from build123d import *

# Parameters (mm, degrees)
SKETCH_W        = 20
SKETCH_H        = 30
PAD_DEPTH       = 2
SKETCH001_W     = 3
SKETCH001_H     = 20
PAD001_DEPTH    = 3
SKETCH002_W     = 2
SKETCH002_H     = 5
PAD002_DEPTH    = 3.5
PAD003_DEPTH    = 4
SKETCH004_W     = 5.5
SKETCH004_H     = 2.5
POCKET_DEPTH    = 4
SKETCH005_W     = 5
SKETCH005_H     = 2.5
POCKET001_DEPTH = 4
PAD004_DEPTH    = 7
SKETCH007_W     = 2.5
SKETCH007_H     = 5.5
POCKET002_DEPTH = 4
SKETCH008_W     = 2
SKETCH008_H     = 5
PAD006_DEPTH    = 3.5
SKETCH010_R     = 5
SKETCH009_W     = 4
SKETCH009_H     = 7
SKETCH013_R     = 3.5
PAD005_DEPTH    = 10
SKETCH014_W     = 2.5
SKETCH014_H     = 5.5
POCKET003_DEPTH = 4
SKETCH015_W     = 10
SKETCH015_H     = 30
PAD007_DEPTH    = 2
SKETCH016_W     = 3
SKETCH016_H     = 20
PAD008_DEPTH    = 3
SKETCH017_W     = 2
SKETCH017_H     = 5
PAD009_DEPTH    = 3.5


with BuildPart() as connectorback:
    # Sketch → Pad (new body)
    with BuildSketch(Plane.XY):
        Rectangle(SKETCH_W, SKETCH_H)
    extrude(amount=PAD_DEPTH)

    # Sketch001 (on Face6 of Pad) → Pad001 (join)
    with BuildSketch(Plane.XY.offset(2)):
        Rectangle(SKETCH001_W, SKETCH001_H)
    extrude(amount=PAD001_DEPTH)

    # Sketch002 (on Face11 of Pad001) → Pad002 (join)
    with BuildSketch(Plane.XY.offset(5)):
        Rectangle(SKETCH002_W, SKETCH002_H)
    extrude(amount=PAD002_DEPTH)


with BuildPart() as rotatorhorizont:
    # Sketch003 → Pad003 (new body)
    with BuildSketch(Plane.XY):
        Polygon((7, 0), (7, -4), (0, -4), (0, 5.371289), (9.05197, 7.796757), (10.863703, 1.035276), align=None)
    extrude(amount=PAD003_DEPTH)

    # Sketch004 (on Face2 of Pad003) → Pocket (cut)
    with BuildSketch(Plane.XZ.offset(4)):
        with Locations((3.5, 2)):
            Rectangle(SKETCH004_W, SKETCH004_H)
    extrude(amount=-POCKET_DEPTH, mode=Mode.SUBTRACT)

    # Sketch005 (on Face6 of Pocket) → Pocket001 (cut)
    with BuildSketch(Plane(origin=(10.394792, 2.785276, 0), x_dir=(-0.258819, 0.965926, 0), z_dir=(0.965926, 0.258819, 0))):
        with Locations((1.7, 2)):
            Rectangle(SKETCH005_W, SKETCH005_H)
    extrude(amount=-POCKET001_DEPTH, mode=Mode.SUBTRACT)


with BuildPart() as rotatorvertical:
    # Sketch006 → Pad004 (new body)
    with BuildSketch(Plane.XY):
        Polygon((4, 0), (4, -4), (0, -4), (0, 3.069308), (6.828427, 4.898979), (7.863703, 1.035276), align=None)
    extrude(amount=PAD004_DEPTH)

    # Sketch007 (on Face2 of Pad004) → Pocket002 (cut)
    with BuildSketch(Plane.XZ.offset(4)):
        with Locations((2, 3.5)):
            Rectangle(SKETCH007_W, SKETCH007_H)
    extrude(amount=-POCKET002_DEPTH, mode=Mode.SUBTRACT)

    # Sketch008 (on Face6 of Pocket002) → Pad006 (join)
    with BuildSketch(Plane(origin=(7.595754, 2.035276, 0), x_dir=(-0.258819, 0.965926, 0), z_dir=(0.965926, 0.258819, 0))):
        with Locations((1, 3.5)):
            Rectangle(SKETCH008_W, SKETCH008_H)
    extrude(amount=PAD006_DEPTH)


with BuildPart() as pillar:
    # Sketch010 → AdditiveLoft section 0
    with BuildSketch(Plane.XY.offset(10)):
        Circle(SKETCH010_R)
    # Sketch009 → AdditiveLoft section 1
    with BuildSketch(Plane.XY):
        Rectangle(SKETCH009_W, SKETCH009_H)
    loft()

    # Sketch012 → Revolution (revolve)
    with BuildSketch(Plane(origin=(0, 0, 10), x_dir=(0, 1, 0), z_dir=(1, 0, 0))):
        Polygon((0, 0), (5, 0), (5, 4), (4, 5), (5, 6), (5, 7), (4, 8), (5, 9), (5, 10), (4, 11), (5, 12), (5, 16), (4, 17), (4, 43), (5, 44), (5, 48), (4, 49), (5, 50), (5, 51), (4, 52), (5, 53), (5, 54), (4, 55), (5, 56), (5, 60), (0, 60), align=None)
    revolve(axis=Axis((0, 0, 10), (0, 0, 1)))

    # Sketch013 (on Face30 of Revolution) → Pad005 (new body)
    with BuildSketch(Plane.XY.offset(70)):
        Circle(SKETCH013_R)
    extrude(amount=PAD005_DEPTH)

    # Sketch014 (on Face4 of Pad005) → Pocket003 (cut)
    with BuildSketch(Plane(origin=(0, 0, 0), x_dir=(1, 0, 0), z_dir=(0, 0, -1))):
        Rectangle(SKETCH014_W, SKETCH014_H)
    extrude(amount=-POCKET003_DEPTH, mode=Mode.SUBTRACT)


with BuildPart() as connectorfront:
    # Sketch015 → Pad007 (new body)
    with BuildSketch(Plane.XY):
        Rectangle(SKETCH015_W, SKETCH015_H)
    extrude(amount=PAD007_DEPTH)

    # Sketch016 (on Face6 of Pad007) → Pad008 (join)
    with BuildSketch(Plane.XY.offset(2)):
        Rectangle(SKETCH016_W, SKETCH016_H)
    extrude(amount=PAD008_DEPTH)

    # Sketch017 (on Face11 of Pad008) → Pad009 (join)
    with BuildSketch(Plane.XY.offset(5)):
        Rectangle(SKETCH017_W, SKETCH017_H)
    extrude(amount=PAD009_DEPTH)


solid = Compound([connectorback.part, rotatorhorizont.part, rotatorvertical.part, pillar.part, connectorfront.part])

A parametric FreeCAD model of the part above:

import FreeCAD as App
import Part
import Sketcher

V = App.Vector
Q = App.Units.Quantity


def add_polygon(sketch, points):
    """Adds a closed chain of lines whose ends are joined by coincident constraints."""
    first, n = sketch.GeometryCount, len(points)
    for a, b in zip(points, points[1:] + points[:1]):
        sketch.addGeometry(Part.LineSegment(App.Vector(*a, 0), App.Vector(*b, 0)), False)
    for i in range(n):
        sketch.addConstraint(Sketcher.Constraint("Coincident", first + i, 2, first + (i + 1) % n, 1))

doc = App.newDocument("Part")
body = doc.addObject("PartDesign::Body", "Body")

# Sketch on XY plane
sketch1 = body.newObject("Sketcher::SketchObject", "Sketch")
sketch1.AttachmentSupport = (doc.getObject("XY_Plane"), [""])
sketch1.MapMode = "FlatFace"
add_polygon(sketch1, [(-10, 15), (-10, -15), (10, -15), (10, 15)])  # lines 0-3
sketch1.addConstraint([
    Sketcher.Constraint("Vertical", 0),
    Sketcher.Constraint("Horizontal", 1),
    Sketcher.Constraint("Vertical", 2),
    Sketcher.Constraint("Horizontal", 3),
    Sketcher.Constraint("Symmetric", 0, 2, 2, 2, -1, 1),
    Sketcher.Constraint("DistanceX", 1, 1, 1, 2, Q("20 mm")),
    Sketcher.Constraint("DistanceY", 0, 2, 0, 1, Q("30 mm")),
])
pad1 = body.newObject("PartDesign::Pad", "Pad")
pad1.Profile = sketch1
pad1.Length = 2

# Sketch on XY plane
sketch2 = body.newObject("Sketcher::SketchObject", "Sketch001")
sketch2.AttachmentSupport = (doc.getObject("XY_Plane"), [""])
sketch2.MapMode = "FlatFace"
sketch2.AttachmentOffset = App.Placement(V(0, 0, 2), App.Rotation())
add_polygon(sketch2, [(-1.5, 10), (-1.5, -10), (1.5, -10), (1.5, 10)])  # lines 0-3
sketch2.addConstraint([
    Sketcher.Constraint("Vertical", 0),
    Sketcher.Constraint("Horizontal", 1),
    Sketcher.Constraint("Vertical", 2),
    Sketcher.Constraint("Horizontal", 3),
    Sketcher.Constraint("Symmetric", 0, 2, 2, 2, -1, 1),
    Sketcher.Constraint("DistanceX", 1, 1, 1, 2, Q("3 mm")),
    Sketcher.Constraint("DistanceY", 0, 2, 0, 1, Q("20 mm")),
])
pad2 = body.newObject("PartDesign::Pad", "Pad001")
pad2.Profile = sketch2
pad2.Length = 3

# Sketch on XY plane
sketch3 = body.newObject("Sketcher::SketchObject", "Sketch002")
sketch3.AttachmentSupport = (doc.getObject("XY_Plane"), [""])
sketch3.MapMode = "FlatFace"
sketch3.AttachmentOffset = App.Placement(V(0, 0, 5), App.Rotation())
add_polygon(sketch3, [(-1, 2.5), (-1, -2.5), (1, -2.5), (1, 2.5)])  # lines 0-3
sketch3.addConstraint([
    Sketcher.Constraint("Vertical", 0),
    Sketcher.Constraint("Horizontal", 1),
    Sketcher.Constraint("Vertical", 2),
    Sketcher.Constraint("Horizontal", 3),
    Sketcher.Constraint("Symmetric", 0, 2, 2, 2, -1, 1),
    Sketcher.Constraint("DistanceX", 1, 1, 1, 2, Q("2 mm")),
    Sketcher.Constraint("DistanceY", 0, 2, 0, 1, Q("5 mm")),
])
pad3 = body.newObject("PartDesign::Pad", "Pad002")
pad3.Profile = sketch3
pad3.Length = 3.5
body2 = doc.addObject("PartDesign::Body", "Body001")

# Sketch on XY plane
sketch4 = body2.newObject("Sketcher::SketchObject", "Sketch003")
sketch4.AttachmentSupport = (doc.getObject("XY_Plane001"), [""])
sketch4.MapMode = "FlatFace"
add_polygon(sketch4, [(7, -4), (7, 0), (10.9, 1), (9.1, 7.8), (0, 5.4), (0, -4)])  # lines 0-5
sketch4.addConstraint([
    Sketcher.Constraint("Vertical", 0),
    Sketcher.Constraint("Vertical", 4),
    Sketcher.Constraint("Horizontal", 5),
    Sketcher.Constraint("PointOnObject", 0, 2, -1),
    Sketcher.Constraint("PointOnObject", 3, 2, -2),
    Sketcher.Constraint("Perpendicular", 1, 2),
    Sketcher.Constraint("Perpendicular", 2, 3),
    Sketcher.Constraint("DistanceX", 5, 1, 5, 2, Q("7 mm")),
    Sketcher.Constraint("DistanceY", 0, 1, 0, 2, Q("4 mm")),
    Sketcher.Constraint("Angle", 1, Q("14.999999 deg")),
    Sketcher.Constraint("Distance", 1, Q("4 mm")),
    Sketcher.Constraint("Distance", 2, Q("7 mm")),
])
pad4 = body2.newObject("PartDesign::Pad", "Pad003")
pad4.Profile = sketch4
pad4.Length = 4

# Sketch on XZ plane
sketch5 = body2.newObject("Sketcher::SketchObject", "Sketch004")
sketch5.AttachmentSupport = (doc.getObject("XZ_Plane001"), [""])
sketch5.MapMode = "FlatFace"
sketch5.AttachmentOffset = App.Placement(V(0, 0, 4), App.Rotation())
add_polygon(sketch5, [(0.8, 3.2), (0.8, 0.8), (6.2, 0.8), (6.2, 3.2)])  # lines 0-3
sketch5.addConstraint([
    Sketcher.Constraint("Vertical", 0),
    Sketcher.Constraint("Horizontal", 1),
    Sketcher.Constraint("Vertical", 2),
    Sketcher.Constraint("Horizontal", 3),
    Sketcher.Constraint("DistanceX", 1, 1, 1, 2, Q("5.5 mm")),
    Sketcher.Constraint("DistanceY", 0, 2, 0, 1, Q("2.5 mm")),
    Sketcher.Constraint("DistanceX", -1, 1, 0, 2, Q("0.75 mm")),
    Sketcher.Constraint("DistanceY", -1, 1, 0, 2, Q("0.75 mm")),
])
pocket1 = body2.newObject("PartDesign::Pocket", "Pocket")
pocket1.Profile = sketch5
pocket1.Length = 4

# Sketch on an angled plane
sketch6 = body2.newObject("Sketcher::SketchObject", "Sketch005")
sketch6.Placement = App.Placement(V(10.394792, 2.785276, 0), App.Rotation(V(-0.25881896, 0.965925849, 0), V(0, 0, 1), V(0.965925849, 0.25881896, 0), "ZXY"))
add_polygon(sketch6, [(-0.8, 3.2), (-0.8, 0.8), (4.2, 0.8), (4.2, 3.2)])  # lines 0-3
sketch6.addConstraint([
    Sketcher.Constraint("Vertical", 0),
    Sketcher.Constraint("Horizontal", 1),
    Sketcher.Constraint("Vertical", 2),
    Sketcher.Constraint("Horizontal", 3),
    Sketcher.Constraint("DistanceX", 1, 1, 1, 2, Q("5 mm")),
    Sketcher.Constraint("DistanceY", 0, 2, 0, 1, Q("2.5 mm")),
    Sketcher.Constraint("DistanceX", 0, 2, -1, 1, Q("0.8 mm")),
    Sketcher.Constraint("DistanceY", -1, 1, 0, 2, Q("0.75 mm")),
])
pocket2 = body2.newObject("PartDesign::Pocket", "Pocket001")
pocket2.Profile = sketch6
pocket2.Length = 4
body3 = doc.addObject("PartDesign::Body", "Body002")

# Sketch on XY plane
sketch7 = body3.newObject("Sketcher::SketchObject", "Sketch006")
sketch7.AttachmentSupport = (doc.getObject("XY_Plane002"), [""])
sketch7.MapMode = "FlatFace"
add_polygon(sketch7, [(4, -4), (4, 0), (7.9, 1), (6.8, 4.9), (0, 3.1), (0, -4)])  # lines 0-5
sketch7.addConstraint([
    Sketcher.Constraint("Vertical", 0),
    Sketcher.Constraint("Vertical", 4),
    Sketcher.Constraint("Horizontal", 5),
    Sketcher.Constraint("PointOnObject", 0, 2, -1),
    Sketcher.Constraint("PointOnObject", 3, 2, -2),
    Sketcher.Constraint("Perpendicular", 1, 2),
    Sketcher.Constraint("Perpendicular", 2, 3),
    Sketcher.Constraint("Equal", 5, 0),
    Sketcher.Constraint("Equal", 1, 2),
    Sketcher.Constraint("DistanceX", 5, 1, 5, 2, Q("4 mm")),
    Sketcher.Constraint("Angle", 1, Q("14.999999 deg")),
    Sketcher.Constraint("Distance", 1, Q("4 mm")),
])
pad5 = body3.newObject("PartDesign::Pad", "Pad004")
pad5.Profile = sketch7
pad5.Length = 7

# Sketch on XZ plane
sketch8 = body3.newObject("Sketcher::SketchObject", "Sketch007")
sketch8.AttachmentSupport = (doc.getObject("XZ_Plane002"), [""])
sketch8.MapMode = "FlatFace"
sketch8.AttachmentOffset = App.Placement(V(0, 0, 4), App.Rotation())
add_polygon(sketch8, [(0.8, 6.2), (0.8, 0.8), (3.2, 0.8), (3.2, 6.2)])  # lines 0-3
sketch8.addConstraint([
    Sketcher.Constraint("Vertical", 0),
    Sketcher.Constraint("Horizontal", 1),
    Sketcher.Constraint("Vertical", 2),
    Sketcher.Constraint("Horizontal", 3),
    Sketcher.Constraint("DistanceX", 1, 1, 1, 2, Q("2.5 mm")),
    Sketcher.Constraint("DistanceY", 0, 2, 0, 1, Q("5.5 mm")),
    Sketcher.Constraint("DistanceX", -1, 1, 0, 2, Q("0.75 mm")),
    Sketcher.Constraint("DistanceY", -1, 1, 0, 2, Q("0.75 mm")),
])
pocket3 = body3.newObject("PartDesign::Pocket", "Pocket002")
pocket3.Profile = sketch8
pocket3.Length = 4

# Sketch on an angled plane
sketch9 = body3.newObject("Sketcher::SketchObject", "Sketch008")
sketch9.Placement = App.Placement(V(7.595754, 2.035276, 0), App.Rotation(V(-0.25881896, 0.965925849, 0), V(0, 0, 1), V(0.965925849, 0.25881896, 0), "ZXY"))
add_polygon(sketch9, [(0, 6), (0, 1), (2, 1), (2, 6)])  # lines 0-3
sketch9.addConstraint([
    Sketcher.Constraint("Vertical", 0),
    Sketcher.Constraint("Horizontal", 1),
    Sketcher.Constraint("Vertical", 2),
    Sketcher.Constraint("Horizontal", 3),
    Sketcher.Constraint("PointOnObject", 0, 2, -2),
    Sketcher.Constraint("DistanceX", 1, 1, 1, 2, Q("2 mm")),
    Sketcher.Constraint("DistanceY", 0, 2, 0, 1, Q("5 mm")),
    Sketcher.Constraint("DistanceY", -1, 1, 0, 2, Q("1 mm")),
])
pad6 = body3.newObject("PartDesign::Pad", "Pad005")
pad6.Profile = sketch9
pad6.Length = 3.5
body4 = doc.addObject("PartDesign::Body", "Body003")

# Sketch on XY plane
sketch10 = body4.newObject("Sketcher::SketchObject", "Sketch009")
sketch10.AttachmentSupport = (doc.getObject("XY_Plane003"), [""])
sketch10.MapMode = "FlatFace"
sketch10.AttachmentOffset = App.Placement(V(0, 0, 10), App.Rotation())
sketch10.addGeometry(Part.Circle(V(0, 0, 0), V(0, 0, 1), 5), False)
sketch10.addConstraint([
    Sketcher.Constraint("Coincident", 0, 3, -1, 1),
    Sketcher.Constraint("Diameter", 0, Q("10 mm")),
])

# Sketch on XY plane
sketch11 = body4.newObject("Sketcher::SketchObject", "Sketch010")
sketch11.AttachmentSupport = (doc.getObject("XY_Plane003"), [""])
sketch11.MapMode = "FlatFace"
add_polygon(sketch11, [(-2, 3.5), (-2, -3.5), (2, -3.5), (2, 3.5)])  # lines 0-3
sketch11.addConstraint([
    Sketcher.Constraint("Vertical", 0),
    Sketcher.Constraint("Horizontal", 1),
    Sketcher.Constraint("Vertical", 2),
    Sketcher.Constraint("Horizontal", 3),
    Sketcher.Constraint("Symmetric", 0, 2, 2, 2, -1, 1),
    Sketcher.Constraint("DistanceX", 1, 1, 1, 2, Q("4 mm")),
    Sketcher.Constraint("DistanceY", 0, 2, 0, 1, Q("7 mm")),
])

additiveloft = body4.newObject("PartDesign::AdditiveLoft", "AdditiveLoft")
additiveloft.Profile = sketch10
additiveloft.Sections = [sketch11]

# Sketch on YZ plane
sketch12 = body4.newObject("Sketcher::SketchObject", "Sketch011")
sketch12.AttachmentSupport = (doc.getObject("YZ_Plane003"), [""])
sketch12.MapMode = "FlatFace"
add_polygon(sketch12, [(0, 10), (5, 10), (5, 14), (4, 15), (5, 16), (5, 17), (4, 18), (5, 19), (5, 20), (4, 21), (5, 22), (5, 26), (4, 27), (4, 53), (5, 54), (5, 58), (4, 59), (5, 60), (5, 61), (4, 62), (5, 63), (5, 64), (4, 65), (5, 66), (5, 70), (0, 70)])  # lines 0-25
sketch12.addConstraint([
    Sketcher.Constraint("Horizontal", 0),
    Sketcher.Constraint("Vertical", 1),
    Sketcher.Constraint("Vertical", 4),
    Sketcher.Constraint("Vertical", 7),
    Sketcher.Constraint("Vertical", 10),
    Sketcher.Constraint("Vertical", 12),
    Sketcher.Constraint("Vertical", 14),
    Sketcher.Constraint("Vertical", 17),
    Sketcher.Constraint("Vertical", 20),
    Sketcher.Constraint("Vertical", 23),
    Sketcher.Constraint("Horizontal", 24),
    Sketcher.Constraint("Vertical", 25),
    Sketcher.Constraint("PointOnObject", 24, 2, -2),
    Sketcher.Constraint("Perpendicular", 2, 3),
    Sketcher.Constraint("Perpendicular", 3, 5),
    Sketcher.Constraint("Perpendicular", 5, 6),
    Sketcher.Constraint("Perpendicular", 6, 8),
    Sketcher.Constraint("Perpendicular", 8, 9),
    Sketcher.Constraint("Perpendicular", 9, 11),
    Sketcher.Constraint("Perpendicular", 11, 13),
    Sketcher.Constraint("Perpendicular", 13, 15),
    Sketcher.Constraint("Perpendicular", 15, 16),
    Sketcher.Constraint("Perpendicular", 16, 18),
    Sketcher.Constraint("Perpendicular", 18, 19),
    Sketcher.Constraint("Perpendicular", 19, 21),
    Sketcher.Constraint("Perpendicular", 21, 22),
    Sketcher.Constraint("Vertical", 1, 2, 3, 2),
    Sketcher.Constraint("Vertical", 2, 2, 5, 2),
    Sketcher.Constraint("Vertical", 4, 2, 6, 2),
    Sketcher.Constraint("Vertical", 5, 2, 8, 2),
    Sketcher.Constraint("Vertical", 7, 2, 9, 2),
    Sketcher.Constraint("Vertical", 8, 2, 11, 2),
    Sketcher.Constraint("Vertical", 10, 2, 13, 2),
    Sketcher.Constraint("Vertical", 12, 2, 15, 2),
    Sketcher.Constraint("Vertical", 14, 2, 16, 2),
    Sketcher.Constraint("Vertical", 15, 2, 18, 2),
    Sketcher.Constraint("Vertical", 17, 2, 19, 2),
    Sketcher.Constraint("Vertical", 18, 2, 21, 2),
    Sketcher.Constraint("Vertical", 20, 2, 22, 2),
    Sketcher.Constraint("Equal", 4, 7),
    Sketcher.Constraint("Equal", 1, 10),
    Sketcher.Constraint("Equal", 10, 14),
    Sketcher.Constraint("Equal", 7, 17),
    Sketcher.Constraint("Equal", 17, 20),
    Sketcher.Constraint("Equal", 14, 23),
    Sketcher.Constraint("Equal", 2, 3),
    Sketcher.Constraint("DistanceX", 0, 1, 0, 2, Q("5 mm")),
    Sketcher.Constraint("DistanceY", 1, 1, 1, 2, Q("4 mm")),
    Sketcher.Constraint("DistanceY", 4, 1, 4, 2, Q("1 mm")),
    Sketcher.Constraint("DistanceY", 12, 1, 12, 2, Q("26 mm")),
    Sketcher.Constraint("DistanceY", 25, 2, 25, 1, Q("60 mm")),
    Sketcher.Constraint("DistanceY", -1, 1, 0, 2, Q("10 mm")),
])
revolution = body4.newObject("PartDesign::Revolution", "Revolution")
revolution.Profile = sketch12
revolution.ReferenceAxis = (sketch12, ["V_Axis"])
revolution.Angle = 360

# Sketch on XY plane
sketch13 = body4.newObject("Sketcher::SketchObject", "Sketch012")
sketch13.AttachmentSupport = (doc.getObject("XY_Plane003"), [""])
sketch13.MapMode = "FlatFace"
sketch13.AttachmentOffset = App.Placement(V(0, 0, 70), App.Rotation())
sketch13.addGeometry(Part.Circle(V(0, 0, 0), V(0, 0, 1), 3.5), False)
sketch13.addConstraint([
    Sketcher.Constraint("Coincident", 0, 3, -1, 1),
    Sketcher.Constraint("Diameter", 0, Q("7 mm")),
])
pad7 = body4.newObject("PartDesign::Pad", "Pad006")
pad7.Profile = sketch13
pad7.Length = 10

# Sketch on XY plane
sketch14 = body4.newObject("Sketcher::SketchObject", "Sketch013")
sketch14.AttachmentSupport = (doc.getObject("XY_Plane003"), [""])
sketch14.MapMode = "FlatFace"
add_polygon(sketch14, [(-1.2, -2.8), (-1.2, 2.8), (1.2, 2.8), (1.2, -2.8)])  # lines 0-3
sketch14.addConstraint([
    Sketcher.Constraint("Vertical", 0),
    Sketcher.Constraint("Horizontal", 1),
    Sketcher.Constraint("Vertical", 2),
    Sketcher.Constraint("Horizontal", 3),
    Sketcher.Constraint("Symmetric", 0, 2, 2, 2, -1, 1),
    Sketcher.Constraint("DistanceX", 1, 1, 1, 2, Q("2.5 mm")),
    Sketcher.Constraint("DistanceY", 0, 1, 0, 2, Q("5.5 mm")),
])
pocket4 = body4.newObject("PartDesign::Pocket", "Pocket003")
pocket4.Profile = sketch14
pocket4.Length = 4
pocket4.Reversed = True
body5 = doc.addObject("PartDesign::Body", "Body004")

# Sketch on XY plane
sketch15 = body5.newObject("Sketcher::SketchObject", "Sketch014")
sketch15.AttachmentSupport = (doc.getObject("XY_Plane004"), [""])
sketch15.MapMode = "FlatFace"
add_polygon(sketch15, [(-5, 15), (-5, -15), (5, -15), (5, 15)])  # lines 0-3
sketch15.addConstraint([
    Sketcher.Constraint("Vertical", 0),
    Sketcher.Constraint("Horizontal", 1),
    Sketcher.Constraint("Vertical", 2),
    Sketcher.Constraint("Horizontal", 3),
    Sketcher.Constraint("Symmetric", 0, 2, 2, 2, -1, 1),
    Sketcher.Constraint("DistanceX", 1, 1, 1, 2, Q("10 mm")),
    Sketcher.Constraint("DistanceY", 0, 2, 0, 1, Q("30 mm")),
])
pad8 = body5.newObject("PartDesign::Pad", "Pad007")
pad8.Profile = sketch15
pad8.Length = 2

# Sketch on XY plane
sketch16 = body5.newObject("Sketcher::SketchObject", "Sketch015")
sketch16.AttachmentSupport = (doc.getObject("XY_Plane004"), [""])
sketch16.MapMode = "FlatFace"
sketch16.AttachmentOffset = App.Placement(V(0, 0, 2), App.Rotation())
add_polygon(sketch16, [(-1.5, 10), (-1.5, -10), (1.5, -10), (1.5, 10)])  # lines 0-3
sketch16.addConstraint([
    Sketcher.Constraint("Vertical", 0),
    Sketcher.Constraint("Horizontal", 1),
    Sketcher.Constraint("Vertical", 2),
    Sketcher.Constraint("Horizontal", 3),
    Sketcher.Constraint("Symmetric", 0, 2, 2, 2, -1, 1),
    Sketcher.Constraint("DistanceX", 1, 1, 1, 2, Q("3 mm")),
    Sketcher.Constraint("DistanceY", 0, 2, 0, 1, Q("20 mm")),
])
pad9 = body5.newObject("PartDesign::Pad", "Pad008")
pad9.Profile = sketch16
pad9.Length = 3

# Sketch on XY plane
sketch17 = body5.newObject("Sketcher::SketchObject", "Sketch016")
sketch17.AttachmentSupport = (doc.getObject("XY_Plane004"), [""])
sketch17.MapMode = "FlatFace"
sketch17.AttachmentOffset = App.Placement(V(0, 0, 5), App.Rotation())
add_polygon(sketch17, [(-1, 2.5), (-1, -2.5), (1, -2.5), (1, 2.5)])  # lines 0-3
sketch17.addConstraint([
    Sketcher.Constraint("Vertical", 0),
    Sketcher.Constraint("Horizontal", 1),
    Sketcher.Constraint("Vertical", 2),
    Sketcher.Constraint("Horizontal", 3),
    Sketcher.Constraint("Symmetric", 0, 2, 2, 2, -1, 1),
    Sketcher.Constraint("DistanceX", 1, 1, 1, 2, Q("2 mm")),
    Sketcher.Constraint("DistanceY", 0, 2, 0, 1, Q("5 mm")),
])
pad10 = body5.newObject("PartDesign::Pad", "Pad009")
pad10.Profile = sketch17
pad10.Length = 3.5

doc.recompute()
